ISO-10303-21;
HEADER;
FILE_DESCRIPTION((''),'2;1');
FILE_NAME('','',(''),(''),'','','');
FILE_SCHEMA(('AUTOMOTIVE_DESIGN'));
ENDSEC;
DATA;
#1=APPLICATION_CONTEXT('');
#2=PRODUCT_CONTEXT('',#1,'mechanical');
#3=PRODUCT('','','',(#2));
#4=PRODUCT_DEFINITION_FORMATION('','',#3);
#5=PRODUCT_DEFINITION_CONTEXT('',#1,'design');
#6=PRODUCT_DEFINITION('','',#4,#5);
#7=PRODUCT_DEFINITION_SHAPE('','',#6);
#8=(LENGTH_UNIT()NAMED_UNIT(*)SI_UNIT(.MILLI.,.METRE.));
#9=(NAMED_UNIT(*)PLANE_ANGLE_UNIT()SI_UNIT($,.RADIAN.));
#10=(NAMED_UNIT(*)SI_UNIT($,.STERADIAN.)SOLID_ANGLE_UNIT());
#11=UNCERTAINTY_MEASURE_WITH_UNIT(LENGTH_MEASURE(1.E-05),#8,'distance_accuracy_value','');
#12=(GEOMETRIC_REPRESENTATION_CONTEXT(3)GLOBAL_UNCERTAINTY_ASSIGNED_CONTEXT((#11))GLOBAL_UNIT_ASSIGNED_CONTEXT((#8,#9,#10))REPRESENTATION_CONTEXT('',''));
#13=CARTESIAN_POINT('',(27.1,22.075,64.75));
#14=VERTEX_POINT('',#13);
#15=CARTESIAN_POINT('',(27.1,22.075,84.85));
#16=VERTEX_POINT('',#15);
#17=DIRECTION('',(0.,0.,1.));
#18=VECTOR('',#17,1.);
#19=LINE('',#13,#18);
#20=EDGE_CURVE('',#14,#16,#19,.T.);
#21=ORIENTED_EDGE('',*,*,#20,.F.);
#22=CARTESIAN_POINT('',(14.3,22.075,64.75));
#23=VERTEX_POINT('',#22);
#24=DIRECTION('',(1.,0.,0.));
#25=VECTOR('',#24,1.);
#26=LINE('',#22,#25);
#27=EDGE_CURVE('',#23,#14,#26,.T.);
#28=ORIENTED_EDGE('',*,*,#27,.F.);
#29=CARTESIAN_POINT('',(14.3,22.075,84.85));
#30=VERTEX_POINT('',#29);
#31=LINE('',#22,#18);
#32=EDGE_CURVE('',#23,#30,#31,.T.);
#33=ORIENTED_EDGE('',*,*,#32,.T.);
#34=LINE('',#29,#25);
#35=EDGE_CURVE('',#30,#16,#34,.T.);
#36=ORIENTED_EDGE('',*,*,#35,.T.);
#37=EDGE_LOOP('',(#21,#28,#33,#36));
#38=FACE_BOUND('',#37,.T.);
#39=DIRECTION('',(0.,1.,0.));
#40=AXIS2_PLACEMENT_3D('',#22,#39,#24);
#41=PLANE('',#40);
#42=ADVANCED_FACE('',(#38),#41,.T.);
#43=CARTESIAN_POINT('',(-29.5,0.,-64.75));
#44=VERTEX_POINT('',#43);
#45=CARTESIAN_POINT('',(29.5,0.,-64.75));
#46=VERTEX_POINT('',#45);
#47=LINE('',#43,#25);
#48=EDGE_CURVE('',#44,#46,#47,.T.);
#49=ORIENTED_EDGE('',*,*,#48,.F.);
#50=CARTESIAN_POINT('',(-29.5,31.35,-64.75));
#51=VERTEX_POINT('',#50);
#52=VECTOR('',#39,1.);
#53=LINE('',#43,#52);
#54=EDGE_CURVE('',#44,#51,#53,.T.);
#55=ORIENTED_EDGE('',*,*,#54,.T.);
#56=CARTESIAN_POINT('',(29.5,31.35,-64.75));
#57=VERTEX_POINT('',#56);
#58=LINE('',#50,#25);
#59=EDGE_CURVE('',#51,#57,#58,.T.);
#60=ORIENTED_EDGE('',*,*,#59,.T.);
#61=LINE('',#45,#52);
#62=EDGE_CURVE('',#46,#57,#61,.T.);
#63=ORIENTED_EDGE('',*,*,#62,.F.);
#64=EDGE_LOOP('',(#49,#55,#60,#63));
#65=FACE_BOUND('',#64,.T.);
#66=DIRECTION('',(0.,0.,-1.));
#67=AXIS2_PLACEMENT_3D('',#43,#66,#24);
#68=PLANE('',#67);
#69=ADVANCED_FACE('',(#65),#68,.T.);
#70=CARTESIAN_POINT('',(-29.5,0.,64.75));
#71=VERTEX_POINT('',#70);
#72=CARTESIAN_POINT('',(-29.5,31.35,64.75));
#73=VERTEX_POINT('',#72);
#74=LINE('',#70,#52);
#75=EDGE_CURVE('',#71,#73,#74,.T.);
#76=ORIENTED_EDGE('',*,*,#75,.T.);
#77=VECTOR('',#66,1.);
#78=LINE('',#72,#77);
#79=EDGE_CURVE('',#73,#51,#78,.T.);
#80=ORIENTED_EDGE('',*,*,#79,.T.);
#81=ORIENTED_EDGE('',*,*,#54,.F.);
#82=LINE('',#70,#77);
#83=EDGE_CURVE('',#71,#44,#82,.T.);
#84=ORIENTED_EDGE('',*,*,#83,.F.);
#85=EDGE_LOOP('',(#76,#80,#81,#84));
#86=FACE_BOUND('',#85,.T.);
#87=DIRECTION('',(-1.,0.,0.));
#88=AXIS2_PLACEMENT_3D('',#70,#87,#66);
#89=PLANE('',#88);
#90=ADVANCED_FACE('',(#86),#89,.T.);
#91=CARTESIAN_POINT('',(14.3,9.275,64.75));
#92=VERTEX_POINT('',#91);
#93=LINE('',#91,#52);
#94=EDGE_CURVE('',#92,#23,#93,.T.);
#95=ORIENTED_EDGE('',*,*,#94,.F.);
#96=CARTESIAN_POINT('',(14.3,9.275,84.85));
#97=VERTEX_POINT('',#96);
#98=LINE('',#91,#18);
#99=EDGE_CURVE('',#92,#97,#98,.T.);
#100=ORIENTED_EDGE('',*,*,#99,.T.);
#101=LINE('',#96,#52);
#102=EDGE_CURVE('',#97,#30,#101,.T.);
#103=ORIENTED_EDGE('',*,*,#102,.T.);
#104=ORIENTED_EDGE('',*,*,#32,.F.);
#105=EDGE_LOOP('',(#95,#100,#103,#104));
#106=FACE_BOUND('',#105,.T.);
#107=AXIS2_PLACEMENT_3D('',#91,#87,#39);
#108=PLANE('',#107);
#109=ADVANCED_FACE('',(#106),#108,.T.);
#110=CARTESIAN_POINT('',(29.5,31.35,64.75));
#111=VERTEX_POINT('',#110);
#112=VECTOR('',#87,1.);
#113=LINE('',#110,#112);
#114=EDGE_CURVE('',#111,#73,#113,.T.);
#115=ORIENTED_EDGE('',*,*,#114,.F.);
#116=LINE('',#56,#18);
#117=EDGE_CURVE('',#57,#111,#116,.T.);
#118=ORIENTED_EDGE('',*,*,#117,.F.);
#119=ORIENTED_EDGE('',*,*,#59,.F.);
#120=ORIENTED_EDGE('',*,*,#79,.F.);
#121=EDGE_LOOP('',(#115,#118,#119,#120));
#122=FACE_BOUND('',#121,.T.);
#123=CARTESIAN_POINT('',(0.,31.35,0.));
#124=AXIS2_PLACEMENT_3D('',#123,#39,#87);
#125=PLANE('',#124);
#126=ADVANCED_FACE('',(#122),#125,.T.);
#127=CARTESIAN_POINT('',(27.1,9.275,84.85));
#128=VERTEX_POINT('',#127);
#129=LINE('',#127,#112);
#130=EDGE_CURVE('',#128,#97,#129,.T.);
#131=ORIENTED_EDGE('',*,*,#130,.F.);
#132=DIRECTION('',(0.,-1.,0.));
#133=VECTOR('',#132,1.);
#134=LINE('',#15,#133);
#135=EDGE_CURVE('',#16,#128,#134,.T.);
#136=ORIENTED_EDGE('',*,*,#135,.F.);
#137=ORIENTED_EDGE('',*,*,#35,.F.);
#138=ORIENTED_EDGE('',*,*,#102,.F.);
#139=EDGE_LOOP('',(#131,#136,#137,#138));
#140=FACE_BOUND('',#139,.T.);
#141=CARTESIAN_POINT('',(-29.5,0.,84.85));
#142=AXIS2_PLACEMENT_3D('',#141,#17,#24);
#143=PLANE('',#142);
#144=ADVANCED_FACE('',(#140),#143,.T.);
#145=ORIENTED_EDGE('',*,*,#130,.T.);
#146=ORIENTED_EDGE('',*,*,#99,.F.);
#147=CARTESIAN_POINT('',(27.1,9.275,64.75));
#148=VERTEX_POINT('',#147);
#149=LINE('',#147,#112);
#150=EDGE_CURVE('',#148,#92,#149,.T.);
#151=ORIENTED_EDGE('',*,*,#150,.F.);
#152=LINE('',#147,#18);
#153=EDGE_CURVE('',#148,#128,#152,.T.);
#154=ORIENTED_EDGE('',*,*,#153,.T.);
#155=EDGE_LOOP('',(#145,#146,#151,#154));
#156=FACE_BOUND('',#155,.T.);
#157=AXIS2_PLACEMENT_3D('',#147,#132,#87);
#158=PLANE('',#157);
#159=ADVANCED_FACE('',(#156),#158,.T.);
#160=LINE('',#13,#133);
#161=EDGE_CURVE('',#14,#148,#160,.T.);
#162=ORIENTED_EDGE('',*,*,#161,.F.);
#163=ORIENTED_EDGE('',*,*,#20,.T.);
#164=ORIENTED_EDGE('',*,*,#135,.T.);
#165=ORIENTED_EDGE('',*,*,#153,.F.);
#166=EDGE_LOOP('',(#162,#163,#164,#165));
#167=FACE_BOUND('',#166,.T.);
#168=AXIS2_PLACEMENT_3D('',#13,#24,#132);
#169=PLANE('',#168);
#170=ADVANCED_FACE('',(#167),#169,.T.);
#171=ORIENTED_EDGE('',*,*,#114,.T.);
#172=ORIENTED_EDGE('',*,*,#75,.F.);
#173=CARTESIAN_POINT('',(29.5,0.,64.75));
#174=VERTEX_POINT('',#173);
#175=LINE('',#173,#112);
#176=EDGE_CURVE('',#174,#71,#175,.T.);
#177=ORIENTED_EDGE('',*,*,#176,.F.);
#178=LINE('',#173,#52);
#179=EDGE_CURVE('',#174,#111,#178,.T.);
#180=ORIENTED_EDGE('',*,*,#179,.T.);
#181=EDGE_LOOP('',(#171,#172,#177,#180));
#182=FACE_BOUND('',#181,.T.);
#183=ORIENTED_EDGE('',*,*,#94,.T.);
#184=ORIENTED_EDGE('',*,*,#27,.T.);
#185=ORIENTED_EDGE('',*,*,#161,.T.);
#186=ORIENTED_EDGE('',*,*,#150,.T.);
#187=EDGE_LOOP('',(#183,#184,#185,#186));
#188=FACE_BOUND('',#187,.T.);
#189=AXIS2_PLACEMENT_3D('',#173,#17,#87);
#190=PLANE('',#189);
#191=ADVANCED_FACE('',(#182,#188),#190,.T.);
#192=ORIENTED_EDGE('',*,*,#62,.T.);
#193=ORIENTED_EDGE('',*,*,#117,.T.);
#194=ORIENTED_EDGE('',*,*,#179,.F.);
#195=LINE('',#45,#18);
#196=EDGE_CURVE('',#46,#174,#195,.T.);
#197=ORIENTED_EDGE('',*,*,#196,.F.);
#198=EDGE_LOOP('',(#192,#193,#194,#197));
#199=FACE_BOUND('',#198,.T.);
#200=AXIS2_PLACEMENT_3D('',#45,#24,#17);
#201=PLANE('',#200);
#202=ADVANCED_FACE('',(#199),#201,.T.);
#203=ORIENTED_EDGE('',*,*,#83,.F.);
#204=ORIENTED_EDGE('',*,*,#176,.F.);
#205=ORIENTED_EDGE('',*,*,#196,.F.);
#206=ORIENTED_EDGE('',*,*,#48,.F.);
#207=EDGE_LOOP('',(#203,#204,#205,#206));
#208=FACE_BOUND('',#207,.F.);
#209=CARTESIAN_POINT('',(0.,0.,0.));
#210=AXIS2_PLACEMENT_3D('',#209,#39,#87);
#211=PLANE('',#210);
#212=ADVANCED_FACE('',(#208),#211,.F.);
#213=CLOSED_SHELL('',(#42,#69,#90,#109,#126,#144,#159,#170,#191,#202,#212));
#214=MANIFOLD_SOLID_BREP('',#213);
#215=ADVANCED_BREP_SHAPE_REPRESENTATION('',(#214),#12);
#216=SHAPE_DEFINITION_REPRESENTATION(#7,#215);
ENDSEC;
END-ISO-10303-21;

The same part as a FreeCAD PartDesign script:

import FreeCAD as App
import Part
import Sketcher
from FreeCAD import Vector
Q = App.Units.Quantity


def add_polygon(sketch, points):
    """Adds a closed chain of lines whose ends are joined by coincident constraints."""
    first, n = sketch.GeometryCount, len(points)
    for a, b in zip(points, points[1:] + points[:1]):
        sketch.addGeometry(Part.LineSegment(App.Vector(*a, 0), App.Vector(*b, 0)), False)
    for i in range(n):
        sketch.addConstraint(Sketcher.Constraint("Coincident", first + i, 2, first + (i + 1) % n, 1))

doc = App.newDocument("Part")
params = doc.addObject("Spreadsheet::Sheet", "Params")
for row, (alias, value) in enumerate([
    ("sketch1_width", "59 mm"),
    ("sketch1_height", "129.5 mm"),
    ("pad1_length", "31.35 mm"),
    ("sketch2_width", "12.8 mm"),
    ("pad2_length", "20.1 mm"),
], start=1):
    params.set(f"A{row}", alias)
    params.set(f"B{row}", "=" + value)
    params.setAlias(f"B{row}", alias)

body = doc.addObject("PartDesign::Body", "Body")

# Sketch on XZ plane
sketch1 = body.newObject("Sketcher::SketchObject", "Sketch")
sketch1.AttachmentSupport = (doc.getObject("XZ_Plane"), [""])
sketch1.MapMode = "FlatFace"
add_polygon(sketch1, [(-29.5, 64.75), (29.5, 64.75), (29.5, -64.75), (-29.5, -64.75)])  # lines 0-3
sketch1.addConstraint(Sketcher.Constraint("Horizontal", 0))
sketch1.addConstraint(Sketcher.Constraint("Vertical", 1))
sketch1.addConstraint(Sketcher.Constraint("Horizontal", 2))
sketch1.addConstraint(Sketcher.Constraint("Vertical", 3))
sketch1.addConstraint(Sketcher.Constraint("Symmetric", 0, 2, 2, 2, -1, 1))
sketch1.addConstraint(Sketcher.Constraint("DistanceX", 0, 1, 0, 2, Q("59 mm")))
sketch1.addConstraint(Sketcher.Constraint("DistanceY", 1, 2, 1, 1, Q("129.5 mm")))
sketch1.setExpression("Constraints[9]", "Params.sketch1_width")
sketch1.setExpression("Constraints[10]", "Params.sketch1_height")
pad1 = body.newObject("PartDesign::Pad", "Pad")
pad1.Profile = sketch1
pad1.setExpression("Length", "Params.pad1_length")
pad1.Reversed = True

# Sketch on XY plane
sketch2 = body.newObject("Sketcher::SketchObject", "Sketch001")
sketch2.AttachmentSupport = (doc.getObject("XY_Plane"), [""])
sketch2.MapMode = "FlatFace"
sketch2.AttachmentOffset = App.Placement(Vector(0, 0, 64.75), App.Rotation())
add_polygon(sketch2, [(27.1, 22.075), (14.3, 22.075), (14.3, 9.275), (27.1, 9.275)])  # lines 0-3
sketch2.addConstraint(Sketcher.Constraint("Horizontal", 0))
sketch2.addConstraint(Sketcher.Constraint("Vertical", 1))
sketch2.addConstraint(Sketcher.Constraint("Horizontal", 2))
sketch2.addConstraint(Sketcher.Constraint("Vertical", 3))
sketch2.addConstraint(Sketcher.Constraint("Equal", 2, 1))
sketch2.addConstraint(Sketcher.Constraint("DistanceX", 0, 2, 0, 1, Q("12.8 mm")))
sketch2.addConstraint(Sketcher.Constraint("DistanceX", -1, 1, 0, 2, Q("14.3 mm")))
sketch2.addConstraint(Sketcher.Constraint("DistanceY", -1, 1, 0, 2, Q("22.075 mm")))
sketch2.setExpression("Constraints[9]", "Params.sketch2_width")
pad2 = body.newObject("PartDesign::Pad", "Pad001")
pad2.Profile = sketch2
pad2.setExpression("Length", "Params.pad2_length")

doc.recompute()
